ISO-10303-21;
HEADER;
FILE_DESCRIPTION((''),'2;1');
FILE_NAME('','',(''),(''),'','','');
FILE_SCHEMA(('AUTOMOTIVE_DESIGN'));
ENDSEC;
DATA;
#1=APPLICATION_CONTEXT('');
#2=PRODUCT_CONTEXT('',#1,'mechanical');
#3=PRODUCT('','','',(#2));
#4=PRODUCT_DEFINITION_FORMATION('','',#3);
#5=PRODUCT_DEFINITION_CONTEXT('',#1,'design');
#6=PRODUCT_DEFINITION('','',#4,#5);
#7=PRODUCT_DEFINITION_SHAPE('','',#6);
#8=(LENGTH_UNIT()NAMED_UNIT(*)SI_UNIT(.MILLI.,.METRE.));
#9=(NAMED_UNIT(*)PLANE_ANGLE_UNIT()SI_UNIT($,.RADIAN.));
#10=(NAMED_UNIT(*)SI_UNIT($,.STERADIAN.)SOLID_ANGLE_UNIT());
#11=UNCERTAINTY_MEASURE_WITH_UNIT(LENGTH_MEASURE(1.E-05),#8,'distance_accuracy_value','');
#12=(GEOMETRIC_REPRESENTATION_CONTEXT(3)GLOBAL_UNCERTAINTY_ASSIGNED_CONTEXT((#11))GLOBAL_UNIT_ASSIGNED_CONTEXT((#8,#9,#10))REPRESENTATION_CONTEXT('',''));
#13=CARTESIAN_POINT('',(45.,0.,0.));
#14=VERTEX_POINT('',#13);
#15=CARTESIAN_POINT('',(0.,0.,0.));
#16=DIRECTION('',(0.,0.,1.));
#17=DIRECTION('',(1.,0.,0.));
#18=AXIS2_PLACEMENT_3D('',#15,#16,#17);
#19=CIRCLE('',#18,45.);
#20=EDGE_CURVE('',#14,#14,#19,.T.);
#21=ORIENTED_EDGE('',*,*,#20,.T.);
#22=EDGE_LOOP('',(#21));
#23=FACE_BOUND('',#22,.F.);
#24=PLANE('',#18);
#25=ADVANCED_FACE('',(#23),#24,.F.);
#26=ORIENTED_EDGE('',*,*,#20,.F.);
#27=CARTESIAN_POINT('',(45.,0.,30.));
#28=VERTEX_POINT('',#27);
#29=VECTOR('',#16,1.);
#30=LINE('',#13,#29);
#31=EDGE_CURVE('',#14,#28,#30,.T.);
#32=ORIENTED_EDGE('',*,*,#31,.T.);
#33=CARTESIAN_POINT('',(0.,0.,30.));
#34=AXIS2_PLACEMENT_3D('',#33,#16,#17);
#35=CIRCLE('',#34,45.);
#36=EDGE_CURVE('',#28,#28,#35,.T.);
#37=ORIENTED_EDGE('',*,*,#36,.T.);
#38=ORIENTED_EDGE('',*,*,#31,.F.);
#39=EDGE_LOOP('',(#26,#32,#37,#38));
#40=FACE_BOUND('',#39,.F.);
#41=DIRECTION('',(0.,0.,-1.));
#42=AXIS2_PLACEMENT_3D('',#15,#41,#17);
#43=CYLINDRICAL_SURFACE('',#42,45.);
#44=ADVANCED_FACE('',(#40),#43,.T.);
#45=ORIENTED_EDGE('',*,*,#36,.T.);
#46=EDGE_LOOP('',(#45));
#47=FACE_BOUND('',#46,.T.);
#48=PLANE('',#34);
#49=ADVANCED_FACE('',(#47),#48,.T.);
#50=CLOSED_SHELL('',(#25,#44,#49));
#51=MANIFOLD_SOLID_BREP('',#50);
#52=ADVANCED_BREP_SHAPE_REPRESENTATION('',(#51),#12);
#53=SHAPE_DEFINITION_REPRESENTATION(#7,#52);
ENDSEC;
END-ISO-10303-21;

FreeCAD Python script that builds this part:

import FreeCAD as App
import Part
import Sketcher

V = App.Vector

doc = App.newDocument("Part")
body = doc.addObject("PartDesign::Body", "Body")

# Sketch on XY plane
sketch1 = body.newObject("Sketcher::SketchObject", "Sketch")
sketch1.AttachmentSupport = (doc.getObject("XY_Plane"), [""])
sketch1.MapMode = "FlatFace"
sketch1.addGeometry(Part.Circle(V(0, 0, 0), V(0, 0, 1), 45), False)
sketch1.addConstraint([
    Sketcher.Constraint("Coincident", 0, 3, -1, 1),
    Sketcher.Constraint("Diameter", 0, 90.0),
])
pad1 = body.newObject("PartDesign::Pad", "Pad")
pad1.Profile = sketch1
pad1.Length = 30

doc.recompute()
